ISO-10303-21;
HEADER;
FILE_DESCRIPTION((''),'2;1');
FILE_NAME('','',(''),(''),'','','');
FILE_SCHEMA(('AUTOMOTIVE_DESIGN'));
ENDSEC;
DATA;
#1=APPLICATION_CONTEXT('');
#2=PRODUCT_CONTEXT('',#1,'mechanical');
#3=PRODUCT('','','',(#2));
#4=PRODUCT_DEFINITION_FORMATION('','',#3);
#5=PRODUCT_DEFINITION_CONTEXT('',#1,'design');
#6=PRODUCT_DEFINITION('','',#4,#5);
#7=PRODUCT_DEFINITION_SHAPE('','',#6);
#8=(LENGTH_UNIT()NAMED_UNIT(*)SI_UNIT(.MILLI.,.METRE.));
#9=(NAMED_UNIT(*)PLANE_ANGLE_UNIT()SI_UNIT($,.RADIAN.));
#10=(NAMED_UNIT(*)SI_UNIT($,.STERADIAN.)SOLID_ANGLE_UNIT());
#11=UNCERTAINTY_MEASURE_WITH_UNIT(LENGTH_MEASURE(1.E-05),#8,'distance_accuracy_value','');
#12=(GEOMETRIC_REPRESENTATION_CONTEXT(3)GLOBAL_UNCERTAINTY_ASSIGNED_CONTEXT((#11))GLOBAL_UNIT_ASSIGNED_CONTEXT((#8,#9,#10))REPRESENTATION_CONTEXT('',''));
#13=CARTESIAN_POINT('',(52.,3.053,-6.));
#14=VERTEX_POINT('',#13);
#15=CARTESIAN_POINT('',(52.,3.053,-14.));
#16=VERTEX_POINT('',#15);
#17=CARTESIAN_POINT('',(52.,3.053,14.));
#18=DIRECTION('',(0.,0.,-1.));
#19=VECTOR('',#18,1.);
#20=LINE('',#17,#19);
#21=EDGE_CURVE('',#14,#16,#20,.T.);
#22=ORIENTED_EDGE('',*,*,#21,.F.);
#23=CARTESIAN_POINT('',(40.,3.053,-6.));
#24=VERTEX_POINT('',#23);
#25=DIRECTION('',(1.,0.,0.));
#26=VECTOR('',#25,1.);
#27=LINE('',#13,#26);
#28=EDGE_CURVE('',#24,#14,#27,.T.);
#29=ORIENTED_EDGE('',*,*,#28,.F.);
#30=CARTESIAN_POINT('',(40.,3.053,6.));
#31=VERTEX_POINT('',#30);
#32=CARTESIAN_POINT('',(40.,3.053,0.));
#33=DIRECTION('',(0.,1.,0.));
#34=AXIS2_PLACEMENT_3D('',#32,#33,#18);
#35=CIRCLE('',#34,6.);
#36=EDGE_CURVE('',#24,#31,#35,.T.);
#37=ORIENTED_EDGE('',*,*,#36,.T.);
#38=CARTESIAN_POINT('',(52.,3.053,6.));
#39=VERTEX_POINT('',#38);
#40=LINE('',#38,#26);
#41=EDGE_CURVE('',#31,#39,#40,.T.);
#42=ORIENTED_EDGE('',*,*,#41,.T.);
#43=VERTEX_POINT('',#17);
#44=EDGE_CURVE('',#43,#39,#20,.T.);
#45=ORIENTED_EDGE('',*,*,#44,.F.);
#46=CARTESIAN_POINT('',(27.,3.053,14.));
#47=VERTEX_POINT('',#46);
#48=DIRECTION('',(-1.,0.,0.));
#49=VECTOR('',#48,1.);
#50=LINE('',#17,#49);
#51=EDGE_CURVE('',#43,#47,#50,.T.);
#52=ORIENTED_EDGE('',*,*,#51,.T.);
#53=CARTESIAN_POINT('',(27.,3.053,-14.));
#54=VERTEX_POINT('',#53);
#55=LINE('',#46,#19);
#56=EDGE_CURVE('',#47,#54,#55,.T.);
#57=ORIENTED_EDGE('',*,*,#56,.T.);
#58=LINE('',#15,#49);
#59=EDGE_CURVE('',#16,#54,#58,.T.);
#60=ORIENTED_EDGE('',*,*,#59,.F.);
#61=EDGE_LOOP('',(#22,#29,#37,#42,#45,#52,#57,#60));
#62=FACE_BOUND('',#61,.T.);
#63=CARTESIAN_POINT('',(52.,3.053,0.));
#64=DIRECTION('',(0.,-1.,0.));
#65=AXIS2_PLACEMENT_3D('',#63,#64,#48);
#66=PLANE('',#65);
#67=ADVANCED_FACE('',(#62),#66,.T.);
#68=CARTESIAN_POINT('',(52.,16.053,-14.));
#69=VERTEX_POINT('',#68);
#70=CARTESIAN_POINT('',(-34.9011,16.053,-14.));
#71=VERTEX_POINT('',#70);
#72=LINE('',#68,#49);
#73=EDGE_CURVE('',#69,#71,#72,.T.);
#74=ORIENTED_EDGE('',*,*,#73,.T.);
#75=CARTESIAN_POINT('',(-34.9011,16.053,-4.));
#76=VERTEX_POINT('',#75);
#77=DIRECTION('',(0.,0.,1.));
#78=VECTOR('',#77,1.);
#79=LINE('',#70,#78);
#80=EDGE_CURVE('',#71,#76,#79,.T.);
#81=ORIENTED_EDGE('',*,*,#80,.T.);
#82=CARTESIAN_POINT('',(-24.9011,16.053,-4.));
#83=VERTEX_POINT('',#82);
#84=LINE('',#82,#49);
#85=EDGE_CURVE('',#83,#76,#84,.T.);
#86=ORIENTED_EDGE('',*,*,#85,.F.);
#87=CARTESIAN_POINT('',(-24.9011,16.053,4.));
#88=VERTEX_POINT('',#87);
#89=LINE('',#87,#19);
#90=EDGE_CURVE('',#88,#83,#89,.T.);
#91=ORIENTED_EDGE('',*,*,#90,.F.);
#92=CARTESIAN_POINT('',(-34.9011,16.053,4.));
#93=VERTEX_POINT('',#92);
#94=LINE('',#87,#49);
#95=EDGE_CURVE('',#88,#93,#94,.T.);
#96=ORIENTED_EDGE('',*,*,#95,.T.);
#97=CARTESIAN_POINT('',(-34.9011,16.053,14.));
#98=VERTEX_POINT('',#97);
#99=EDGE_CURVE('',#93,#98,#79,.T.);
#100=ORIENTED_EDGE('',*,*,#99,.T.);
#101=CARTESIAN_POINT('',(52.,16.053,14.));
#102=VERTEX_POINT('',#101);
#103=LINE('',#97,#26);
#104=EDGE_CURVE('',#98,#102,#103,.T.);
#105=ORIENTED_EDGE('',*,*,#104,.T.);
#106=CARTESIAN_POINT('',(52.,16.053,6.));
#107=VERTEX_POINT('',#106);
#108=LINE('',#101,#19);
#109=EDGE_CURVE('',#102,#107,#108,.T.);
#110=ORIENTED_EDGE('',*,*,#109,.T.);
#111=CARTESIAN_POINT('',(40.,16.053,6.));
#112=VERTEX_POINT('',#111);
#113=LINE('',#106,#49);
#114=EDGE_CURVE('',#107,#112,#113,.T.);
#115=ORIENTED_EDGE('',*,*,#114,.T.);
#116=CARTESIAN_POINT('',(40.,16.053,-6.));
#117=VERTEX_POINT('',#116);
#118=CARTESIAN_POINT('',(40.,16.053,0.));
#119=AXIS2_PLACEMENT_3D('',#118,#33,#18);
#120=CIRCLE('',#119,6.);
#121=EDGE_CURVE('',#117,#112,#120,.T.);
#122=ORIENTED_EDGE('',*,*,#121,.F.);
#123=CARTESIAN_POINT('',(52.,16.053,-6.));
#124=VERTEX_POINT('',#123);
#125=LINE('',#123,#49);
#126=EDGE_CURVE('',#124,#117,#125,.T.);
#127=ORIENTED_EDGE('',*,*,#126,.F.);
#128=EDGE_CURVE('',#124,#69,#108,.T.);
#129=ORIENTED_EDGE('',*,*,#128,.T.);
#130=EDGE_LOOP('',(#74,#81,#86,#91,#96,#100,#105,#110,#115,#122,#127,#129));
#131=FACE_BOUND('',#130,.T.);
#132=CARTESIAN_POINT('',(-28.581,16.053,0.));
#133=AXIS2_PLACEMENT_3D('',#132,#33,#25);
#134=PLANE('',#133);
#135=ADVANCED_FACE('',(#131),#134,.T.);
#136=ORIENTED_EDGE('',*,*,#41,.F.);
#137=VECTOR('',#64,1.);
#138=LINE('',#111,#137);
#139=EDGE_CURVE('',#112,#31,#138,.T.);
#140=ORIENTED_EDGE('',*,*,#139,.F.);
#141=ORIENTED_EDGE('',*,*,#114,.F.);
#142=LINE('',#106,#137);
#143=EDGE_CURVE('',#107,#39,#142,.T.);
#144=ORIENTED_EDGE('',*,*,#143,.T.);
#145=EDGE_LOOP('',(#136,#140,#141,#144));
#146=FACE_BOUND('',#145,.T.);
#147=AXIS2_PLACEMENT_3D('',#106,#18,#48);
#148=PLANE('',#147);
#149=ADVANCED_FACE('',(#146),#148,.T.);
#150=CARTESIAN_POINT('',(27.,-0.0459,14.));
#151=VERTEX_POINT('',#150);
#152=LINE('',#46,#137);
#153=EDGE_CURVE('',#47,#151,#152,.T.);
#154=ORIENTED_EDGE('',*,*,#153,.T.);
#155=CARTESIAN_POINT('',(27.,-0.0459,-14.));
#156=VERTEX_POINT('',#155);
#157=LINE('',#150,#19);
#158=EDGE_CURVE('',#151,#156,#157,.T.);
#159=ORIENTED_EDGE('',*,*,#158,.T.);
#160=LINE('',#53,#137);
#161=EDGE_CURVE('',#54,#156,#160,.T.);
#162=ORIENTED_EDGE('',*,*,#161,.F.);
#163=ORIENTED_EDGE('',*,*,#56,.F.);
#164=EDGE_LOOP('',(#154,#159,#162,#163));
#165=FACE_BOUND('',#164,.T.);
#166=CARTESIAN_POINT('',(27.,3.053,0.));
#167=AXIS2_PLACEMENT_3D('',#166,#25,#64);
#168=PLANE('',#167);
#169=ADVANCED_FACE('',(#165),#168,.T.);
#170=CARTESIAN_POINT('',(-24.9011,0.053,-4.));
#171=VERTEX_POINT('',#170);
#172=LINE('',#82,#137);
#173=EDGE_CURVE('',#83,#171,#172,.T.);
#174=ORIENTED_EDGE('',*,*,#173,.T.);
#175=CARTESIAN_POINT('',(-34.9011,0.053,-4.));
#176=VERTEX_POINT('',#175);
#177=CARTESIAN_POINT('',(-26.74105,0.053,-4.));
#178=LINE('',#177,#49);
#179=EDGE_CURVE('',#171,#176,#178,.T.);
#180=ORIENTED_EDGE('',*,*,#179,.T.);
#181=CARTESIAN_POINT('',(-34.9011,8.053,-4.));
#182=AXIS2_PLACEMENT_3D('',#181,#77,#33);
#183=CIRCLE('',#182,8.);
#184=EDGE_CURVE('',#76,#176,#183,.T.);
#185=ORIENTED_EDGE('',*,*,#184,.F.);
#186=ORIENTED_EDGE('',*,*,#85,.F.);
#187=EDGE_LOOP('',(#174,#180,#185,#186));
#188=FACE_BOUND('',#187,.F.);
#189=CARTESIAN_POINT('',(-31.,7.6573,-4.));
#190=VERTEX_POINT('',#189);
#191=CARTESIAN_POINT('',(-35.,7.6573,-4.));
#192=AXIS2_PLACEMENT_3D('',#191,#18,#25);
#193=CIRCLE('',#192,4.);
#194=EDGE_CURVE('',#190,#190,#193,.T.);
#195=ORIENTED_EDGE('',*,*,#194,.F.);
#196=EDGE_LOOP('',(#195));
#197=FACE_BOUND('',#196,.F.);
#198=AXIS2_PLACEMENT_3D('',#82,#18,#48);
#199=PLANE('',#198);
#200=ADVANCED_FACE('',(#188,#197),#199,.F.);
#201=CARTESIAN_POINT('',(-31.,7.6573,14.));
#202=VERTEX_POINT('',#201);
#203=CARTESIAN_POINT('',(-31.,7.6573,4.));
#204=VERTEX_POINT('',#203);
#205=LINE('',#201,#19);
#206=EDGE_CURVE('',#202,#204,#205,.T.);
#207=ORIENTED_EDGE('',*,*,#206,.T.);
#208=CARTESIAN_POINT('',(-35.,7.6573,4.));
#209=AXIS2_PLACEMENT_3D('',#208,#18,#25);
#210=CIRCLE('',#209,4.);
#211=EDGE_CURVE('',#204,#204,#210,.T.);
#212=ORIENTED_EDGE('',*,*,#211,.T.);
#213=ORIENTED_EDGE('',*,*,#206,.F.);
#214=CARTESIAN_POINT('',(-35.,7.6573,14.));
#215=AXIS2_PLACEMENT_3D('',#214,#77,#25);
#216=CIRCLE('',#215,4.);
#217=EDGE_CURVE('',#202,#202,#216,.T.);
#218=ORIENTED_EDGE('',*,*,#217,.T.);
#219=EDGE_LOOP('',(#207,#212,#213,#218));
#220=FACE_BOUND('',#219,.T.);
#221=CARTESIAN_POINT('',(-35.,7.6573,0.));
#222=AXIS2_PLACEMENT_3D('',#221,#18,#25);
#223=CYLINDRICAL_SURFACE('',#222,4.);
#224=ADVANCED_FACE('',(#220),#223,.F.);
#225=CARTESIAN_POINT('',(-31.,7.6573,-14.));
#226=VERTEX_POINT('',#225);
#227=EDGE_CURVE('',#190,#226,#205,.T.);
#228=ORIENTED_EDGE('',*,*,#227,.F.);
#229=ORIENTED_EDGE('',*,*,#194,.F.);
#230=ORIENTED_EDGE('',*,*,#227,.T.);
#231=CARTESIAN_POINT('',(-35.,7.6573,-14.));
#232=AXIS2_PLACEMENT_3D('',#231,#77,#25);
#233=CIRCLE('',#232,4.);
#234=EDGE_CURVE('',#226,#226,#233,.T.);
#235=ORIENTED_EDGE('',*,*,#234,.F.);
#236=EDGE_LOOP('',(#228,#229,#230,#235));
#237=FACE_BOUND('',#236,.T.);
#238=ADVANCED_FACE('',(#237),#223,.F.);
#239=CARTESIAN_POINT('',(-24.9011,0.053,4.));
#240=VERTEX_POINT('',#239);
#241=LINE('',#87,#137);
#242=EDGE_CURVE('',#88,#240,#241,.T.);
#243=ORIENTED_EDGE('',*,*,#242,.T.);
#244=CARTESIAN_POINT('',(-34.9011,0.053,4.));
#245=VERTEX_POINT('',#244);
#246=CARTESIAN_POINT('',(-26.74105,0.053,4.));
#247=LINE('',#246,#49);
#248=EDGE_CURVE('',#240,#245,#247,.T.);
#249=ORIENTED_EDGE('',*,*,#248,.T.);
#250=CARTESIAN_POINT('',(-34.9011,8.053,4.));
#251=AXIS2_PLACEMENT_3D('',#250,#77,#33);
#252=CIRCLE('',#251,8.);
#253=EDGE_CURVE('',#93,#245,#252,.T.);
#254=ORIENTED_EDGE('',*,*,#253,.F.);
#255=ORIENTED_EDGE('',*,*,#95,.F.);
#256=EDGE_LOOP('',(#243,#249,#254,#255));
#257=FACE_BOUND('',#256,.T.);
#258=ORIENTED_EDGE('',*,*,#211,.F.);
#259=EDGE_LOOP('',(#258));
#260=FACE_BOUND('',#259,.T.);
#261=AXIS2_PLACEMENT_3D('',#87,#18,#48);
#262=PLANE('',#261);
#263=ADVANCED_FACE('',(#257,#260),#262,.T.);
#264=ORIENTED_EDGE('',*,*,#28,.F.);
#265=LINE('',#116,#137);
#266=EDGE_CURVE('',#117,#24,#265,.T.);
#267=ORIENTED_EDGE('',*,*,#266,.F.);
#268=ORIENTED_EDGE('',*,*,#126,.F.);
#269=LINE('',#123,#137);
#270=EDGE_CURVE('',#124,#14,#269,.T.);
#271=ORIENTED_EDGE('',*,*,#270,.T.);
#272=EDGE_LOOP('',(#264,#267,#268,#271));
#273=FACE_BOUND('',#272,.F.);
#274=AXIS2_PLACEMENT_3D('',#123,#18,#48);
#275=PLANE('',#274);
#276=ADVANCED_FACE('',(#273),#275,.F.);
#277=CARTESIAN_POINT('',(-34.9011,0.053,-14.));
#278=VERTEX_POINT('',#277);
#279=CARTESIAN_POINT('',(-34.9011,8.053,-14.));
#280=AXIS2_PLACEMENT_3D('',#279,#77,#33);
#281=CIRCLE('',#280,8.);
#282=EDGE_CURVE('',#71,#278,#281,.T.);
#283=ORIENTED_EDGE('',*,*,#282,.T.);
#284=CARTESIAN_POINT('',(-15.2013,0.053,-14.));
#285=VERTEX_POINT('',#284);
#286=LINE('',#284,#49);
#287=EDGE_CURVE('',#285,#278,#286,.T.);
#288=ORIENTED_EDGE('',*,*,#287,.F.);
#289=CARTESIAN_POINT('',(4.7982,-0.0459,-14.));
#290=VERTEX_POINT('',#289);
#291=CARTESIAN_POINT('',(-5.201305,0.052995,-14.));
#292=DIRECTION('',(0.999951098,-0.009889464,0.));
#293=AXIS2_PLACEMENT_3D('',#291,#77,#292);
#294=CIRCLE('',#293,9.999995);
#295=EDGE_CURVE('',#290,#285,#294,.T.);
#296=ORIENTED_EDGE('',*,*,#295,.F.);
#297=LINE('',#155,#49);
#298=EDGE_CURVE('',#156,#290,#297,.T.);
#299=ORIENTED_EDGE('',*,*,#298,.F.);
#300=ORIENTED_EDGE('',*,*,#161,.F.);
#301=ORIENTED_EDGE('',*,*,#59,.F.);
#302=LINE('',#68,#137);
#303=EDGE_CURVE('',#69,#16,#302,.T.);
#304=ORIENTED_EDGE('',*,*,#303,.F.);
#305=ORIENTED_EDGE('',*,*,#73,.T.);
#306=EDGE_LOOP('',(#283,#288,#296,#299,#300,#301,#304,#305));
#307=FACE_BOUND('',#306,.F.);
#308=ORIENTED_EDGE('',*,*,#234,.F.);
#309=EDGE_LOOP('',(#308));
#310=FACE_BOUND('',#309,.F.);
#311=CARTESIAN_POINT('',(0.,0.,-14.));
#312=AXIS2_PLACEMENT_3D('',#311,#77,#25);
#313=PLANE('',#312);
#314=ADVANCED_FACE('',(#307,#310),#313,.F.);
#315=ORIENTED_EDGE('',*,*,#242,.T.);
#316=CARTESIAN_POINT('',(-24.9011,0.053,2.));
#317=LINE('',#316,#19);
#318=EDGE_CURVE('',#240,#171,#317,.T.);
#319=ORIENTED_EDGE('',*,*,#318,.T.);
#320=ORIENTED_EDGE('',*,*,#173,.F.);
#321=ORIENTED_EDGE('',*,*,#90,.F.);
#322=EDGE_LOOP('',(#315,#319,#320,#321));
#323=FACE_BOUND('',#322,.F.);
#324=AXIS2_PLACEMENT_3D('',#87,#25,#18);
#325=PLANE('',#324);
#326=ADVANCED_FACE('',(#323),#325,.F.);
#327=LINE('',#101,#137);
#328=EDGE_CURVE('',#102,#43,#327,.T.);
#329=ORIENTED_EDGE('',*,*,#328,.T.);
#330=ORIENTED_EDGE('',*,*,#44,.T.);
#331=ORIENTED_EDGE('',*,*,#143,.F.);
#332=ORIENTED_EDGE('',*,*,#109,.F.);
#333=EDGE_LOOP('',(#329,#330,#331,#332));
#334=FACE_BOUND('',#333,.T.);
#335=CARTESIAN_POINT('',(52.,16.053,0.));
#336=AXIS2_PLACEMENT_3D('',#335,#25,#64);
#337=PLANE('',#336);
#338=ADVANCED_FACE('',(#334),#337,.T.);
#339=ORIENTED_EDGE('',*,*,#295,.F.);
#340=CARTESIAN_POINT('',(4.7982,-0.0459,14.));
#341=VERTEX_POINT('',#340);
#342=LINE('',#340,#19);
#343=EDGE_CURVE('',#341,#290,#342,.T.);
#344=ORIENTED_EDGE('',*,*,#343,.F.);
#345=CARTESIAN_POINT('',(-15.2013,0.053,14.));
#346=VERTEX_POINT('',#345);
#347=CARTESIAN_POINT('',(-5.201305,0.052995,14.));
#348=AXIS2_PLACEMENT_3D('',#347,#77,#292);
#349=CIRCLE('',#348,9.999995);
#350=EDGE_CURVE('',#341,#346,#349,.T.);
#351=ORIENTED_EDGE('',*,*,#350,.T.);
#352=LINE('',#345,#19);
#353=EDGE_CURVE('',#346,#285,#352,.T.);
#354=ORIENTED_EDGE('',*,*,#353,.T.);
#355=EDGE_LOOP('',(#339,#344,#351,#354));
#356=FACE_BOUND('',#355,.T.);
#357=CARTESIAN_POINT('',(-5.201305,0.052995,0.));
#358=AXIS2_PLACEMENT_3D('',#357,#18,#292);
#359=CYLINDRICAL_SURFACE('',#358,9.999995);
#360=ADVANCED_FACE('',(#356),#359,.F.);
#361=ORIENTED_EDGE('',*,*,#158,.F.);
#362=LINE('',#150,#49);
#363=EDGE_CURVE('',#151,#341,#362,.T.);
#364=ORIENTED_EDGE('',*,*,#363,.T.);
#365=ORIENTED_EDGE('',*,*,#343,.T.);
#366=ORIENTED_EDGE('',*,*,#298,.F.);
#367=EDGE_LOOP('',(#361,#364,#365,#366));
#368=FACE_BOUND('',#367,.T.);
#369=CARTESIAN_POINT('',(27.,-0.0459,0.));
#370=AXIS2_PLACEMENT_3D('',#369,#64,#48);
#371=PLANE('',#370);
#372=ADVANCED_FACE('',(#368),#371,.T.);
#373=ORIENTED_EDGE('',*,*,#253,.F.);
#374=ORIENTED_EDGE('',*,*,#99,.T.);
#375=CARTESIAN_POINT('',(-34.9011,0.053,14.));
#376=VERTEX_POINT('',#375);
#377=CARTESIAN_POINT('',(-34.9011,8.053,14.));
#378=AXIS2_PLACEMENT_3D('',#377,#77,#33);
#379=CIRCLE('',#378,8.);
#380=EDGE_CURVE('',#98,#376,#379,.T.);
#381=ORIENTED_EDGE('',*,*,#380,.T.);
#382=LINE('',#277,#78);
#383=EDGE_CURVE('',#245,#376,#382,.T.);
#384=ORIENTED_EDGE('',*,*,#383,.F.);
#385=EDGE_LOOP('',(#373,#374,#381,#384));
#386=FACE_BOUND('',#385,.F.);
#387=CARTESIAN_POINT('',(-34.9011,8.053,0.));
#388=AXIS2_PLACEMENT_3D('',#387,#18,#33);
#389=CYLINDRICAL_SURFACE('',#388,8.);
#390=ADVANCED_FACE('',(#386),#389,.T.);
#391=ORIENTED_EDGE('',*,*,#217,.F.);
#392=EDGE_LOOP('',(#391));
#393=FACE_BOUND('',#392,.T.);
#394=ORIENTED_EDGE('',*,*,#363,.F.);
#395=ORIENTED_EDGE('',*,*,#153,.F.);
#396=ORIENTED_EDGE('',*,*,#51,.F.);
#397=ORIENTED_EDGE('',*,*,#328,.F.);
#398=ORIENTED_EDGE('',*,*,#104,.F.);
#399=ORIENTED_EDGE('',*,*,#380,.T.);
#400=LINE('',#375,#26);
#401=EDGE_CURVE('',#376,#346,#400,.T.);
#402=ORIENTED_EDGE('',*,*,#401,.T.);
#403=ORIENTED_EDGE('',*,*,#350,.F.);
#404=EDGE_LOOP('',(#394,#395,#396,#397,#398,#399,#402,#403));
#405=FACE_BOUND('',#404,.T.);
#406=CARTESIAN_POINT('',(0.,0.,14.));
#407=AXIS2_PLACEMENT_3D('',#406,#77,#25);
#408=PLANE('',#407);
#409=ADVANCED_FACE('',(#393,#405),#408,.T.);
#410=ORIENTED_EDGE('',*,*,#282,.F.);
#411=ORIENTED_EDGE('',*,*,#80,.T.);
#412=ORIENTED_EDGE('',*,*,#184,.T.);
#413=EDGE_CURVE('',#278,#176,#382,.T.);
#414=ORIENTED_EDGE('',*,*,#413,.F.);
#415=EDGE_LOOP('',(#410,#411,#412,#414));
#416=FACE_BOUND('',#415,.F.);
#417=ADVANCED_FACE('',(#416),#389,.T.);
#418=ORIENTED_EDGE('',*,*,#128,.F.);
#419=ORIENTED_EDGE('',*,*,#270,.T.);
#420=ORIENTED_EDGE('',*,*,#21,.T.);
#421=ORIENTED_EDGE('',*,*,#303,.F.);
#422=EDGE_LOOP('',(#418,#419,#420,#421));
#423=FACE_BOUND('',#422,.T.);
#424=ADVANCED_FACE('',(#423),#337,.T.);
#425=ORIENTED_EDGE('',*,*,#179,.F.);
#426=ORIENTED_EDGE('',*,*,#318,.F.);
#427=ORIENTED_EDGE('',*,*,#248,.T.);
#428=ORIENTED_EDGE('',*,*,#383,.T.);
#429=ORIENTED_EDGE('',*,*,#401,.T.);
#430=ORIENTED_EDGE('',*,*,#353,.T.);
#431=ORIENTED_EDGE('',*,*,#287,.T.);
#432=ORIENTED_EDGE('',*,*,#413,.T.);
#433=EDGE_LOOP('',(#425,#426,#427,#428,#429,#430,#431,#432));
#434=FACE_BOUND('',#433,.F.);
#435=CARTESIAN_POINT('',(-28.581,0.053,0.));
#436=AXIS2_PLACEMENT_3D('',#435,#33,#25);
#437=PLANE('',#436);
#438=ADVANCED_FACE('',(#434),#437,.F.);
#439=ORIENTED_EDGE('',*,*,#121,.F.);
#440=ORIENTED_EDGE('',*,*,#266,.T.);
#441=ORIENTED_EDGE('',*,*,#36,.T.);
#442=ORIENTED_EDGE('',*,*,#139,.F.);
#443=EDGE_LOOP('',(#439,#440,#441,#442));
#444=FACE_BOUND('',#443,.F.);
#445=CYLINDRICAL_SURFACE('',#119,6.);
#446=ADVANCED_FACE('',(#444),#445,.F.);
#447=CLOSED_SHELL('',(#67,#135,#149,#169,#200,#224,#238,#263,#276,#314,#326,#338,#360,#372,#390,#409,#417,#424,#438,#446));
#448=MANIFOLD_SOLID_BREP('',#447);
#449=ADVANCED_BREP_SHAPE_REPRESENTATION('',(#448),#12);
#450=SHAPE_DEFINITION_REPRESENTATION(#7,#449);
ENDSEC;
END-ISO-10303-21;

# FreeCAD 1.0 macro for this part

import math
import FreeCAD as App
import Part
import Sketcher
from FreeCAD import Vector
Q = App.Units.Quantity

doc = App.newDocument("Part")
body = doc.addObject("PartDesign::Body", "Body")

# Sketch on XY plane
sketch1 = body.newObject("Sketcher::SketchObject", "Sketch")
sketch1.AttachmentSupport = (doc.getObject("XY_Plane"), [""])
sketch1.MapMode = "FlatFace"
sketch1.addGeometry([
    Part.LineSegment(Vector(52, 16.1, 0), Vector(-34.9, 16.1, 0)),  # 0
    Part.ArcOfCircle(Part.Circle(Vector(-34.9, 8.1, 0), Vector(0, 0, 1), 8), math.radians(90), math.radians(270)),  # 1
    Part.LineSegment(Vector(-34.9, 0.1, 0), Vector(-15.2, 0.1, 0)),  # 2
    Part.ArcOfCircle(Part.Circle(Vector(-5.2, 0.1, 0), Vector(0, 0, 1), 10), math.radians(-1), math.radians(180)),  # 3
    Part.LineSegment(Vector(4.8, 0, 0), Vector(27, 0, 0)),  # 4
    Part.LineSegment(Vector(27, 0, 0), Vector(27, 3.1, 0)),  # 5
    Part.LineSegment(Vector(27, 3.1, 0), Vector(52, 3.1, 0)),  # 6
    Part.LineSegment(Vector(52, 3.1, 0), Vector(52, 16.1, 0)),  # 7
    Part.Circle(Vector(-35, 7.7, 0), Vector(0, 0, 1), 4),  # 8
], False)
sketch1.addConstraint([
    Sketcher.Constraint("Tangent", 0, 2, 1, 1),
    Sketcher.Constraint("Tangent", 1, 2, 2, 1),
    Sketcher.Constraint("Coincident", 2, 2, 3, 2),
    Sketcher.Constraint("Coincident", 3, 1, 4, 1),
    Sketcher.Constraint("Coincident", 4, 2, 5, 1),
    Sketcher.Constraint("Coincident", 5, 2, 6, 1),
    Sketcher.Constraint("Coincident", 6, 2, 7, 1),
    Sketcher.Constraint("Coincident", 7, 2, 0, 1),
    Sketcher.Constraint("Horizontal", 0),
    Sketcher.Constraint("Horizontal", 2),
    Sketcher.Constraint("Horizontal", 4),
    Sketcher.Constraint("Vertical", 5),
    Sketcher.Constraint("Horizontal", 6),
    Sketcher.Constraint("Vertical", 7),
    Sketcher.Constraint("Horizontal", 3, 3, 1, 2),
    Sketcher.Constraint("Diameter", 8, Q("8 mm")),
    Sketcher.Constraint("Radius", 1, Q("8 mm")),
    Sketcher.Constraint("Radius", 3, Q("10 mm")),
    Sketcher.Constraint("DistanceX", 6, 1, 6, 2, Q("25 mm")),
    Sketcher.Constraint("DistanceY", 7, 1, 7, 2, Q("13 mm")),
    Sketcher.Constraint("DistanceX", -1, 1, 6, 2, Q("52 mm")),
    Sketcher.Constraint("DistanceX", 8, 3, -1, 1, Q("35 mm")),
    Sketcher.Constraint("DistanceX", 2, 2, 3, 1, Q("19.9995 mm")),
    Sketcher.Constraint("DistanceX", 0, 2, 0, 1, Q("86.901 mm")),
    Sketcher.Constraint("DistanceX", 2, 1, 2, 2, Q("19.6998 mm")),
    Sketcher.Constraint("DistanceY", -1, 1, 1, 3, Q("8.053 mm")),
    Sketcher.Constraint("DistanceY", -1, 1, 8, 3, Q("7.6573 mm")),
])
pad1 = body.newObject("PartDesign::Pad", "Pad")
pad1.Profile = sketch1
pad1.Length = 28
pad1.Midplane = True

# Sketch on XZ plane
sketch2 = body.newObject("Sketcher::SketchObject", "Sketch001")
sketch2.AttachmentSupport = (doc.getObject("XZ_Plane"), [""])
sketch2.MapMode = "FlatFace"
sketch2.AttachmentOffset = App.Placement(Vector(0, 0, -16.053), App.Rotation())
sketch2.addGeometry([
    Part.LineSegment(Vector(52, 6, 0), Vector(52, -6, 0)),  # 0
    Part.LineSegment(Vector(52, -6, 0), Vector(40, -6, 0)),  # 1
    Part.ArcOfCircle(Part.Circle(Vector(40, 0, 0), Vector(0, 0, 1), 6), math.radians(90), math.radians(270)),  # 2
    Part.LineSegment(Vector(40, 6, 0), Vector(52, 6, 0)),  # 3
    Part.LineSegment(Vector(-25, 4, 0), Vector(-25, -4, 0)),  # 4
    Part.LineSegment(Vector(-25, -4, 0), Vector(-43, -4, 0)),  # 5
    Part.LineSegment(Vector(-43, -4, 0), Vector(-43, 4, 0)),  # 6
    Part.LineSegment(Vector(-43, 4, 0), Vector(-25, 4, 0)),  # 7
], False)
sketch2.addConstraint([
    Sketcher.Constraint("Coincident", 0, 2, 1, 1),
    Sketcher.Constraint("Tangent", 1, 2, 2, 2),
    Sketcher.Constraint("Tangent", 2, 1, 3, 1),
    Sketcher.Constraint("Coincident", 3, 2, 0, 1),
    Sketcher.Constraint("Coincident", 4, 2, 5, 1),
    Sketcher.Constraint("Coincident", 5, 2, 6, 1),
    Sketcher.Constraint("Coincident", 6, 2, 7, 1),
    Sketcher.Constraint("Coincident", 7, 2, 4, 1),
    Sketcher.Constraint("Vertical", 0),
    Sketcher.Constraint("Horizontal", 1),
    Sketcher.Constraint("Horizontal", 3),
    Sketcher.Constraint("Vertical", 4),
    Sketcher.Constraint("Horizontal", 5),
    Sketcher.Constraint("Vertical", 6),
    Sketcher.Constraint("Horizontal", 7),
    Sketcher.Constraint("PointOnObject", 2, 3, -1),
    Sketcher.Constraint("Equal", 3, 0),
    Sketcher.Constraint("Radius", 2, Q("6 mm")),
    Sketcher.Constraint("DistanceX", 5, 2, 5, 1, Q("18 mm")),
    Sketcher.Constraint("DistanceY", 4, 2, 4, 1, Q("8 mm")),
    Sketcher.Constraint("DistanceX", -1, 1, 2, 3, Q("40 mm")),
    Sketcher.Constraint("DistanceY", 4, 2, -1, 1, Q("4 mm")),
    Sketcher.Constraint("DistanceX", 4, 2, -1, 1, Q("24.901 mm")),
])
pocket1 = body.newObject("PartDesign::Pocket", "Pocket")
pocket1.Profile = sketch2
pocket1.Type = "ThroughAll"
pocket1.Reversed = True

doc.recompute()
